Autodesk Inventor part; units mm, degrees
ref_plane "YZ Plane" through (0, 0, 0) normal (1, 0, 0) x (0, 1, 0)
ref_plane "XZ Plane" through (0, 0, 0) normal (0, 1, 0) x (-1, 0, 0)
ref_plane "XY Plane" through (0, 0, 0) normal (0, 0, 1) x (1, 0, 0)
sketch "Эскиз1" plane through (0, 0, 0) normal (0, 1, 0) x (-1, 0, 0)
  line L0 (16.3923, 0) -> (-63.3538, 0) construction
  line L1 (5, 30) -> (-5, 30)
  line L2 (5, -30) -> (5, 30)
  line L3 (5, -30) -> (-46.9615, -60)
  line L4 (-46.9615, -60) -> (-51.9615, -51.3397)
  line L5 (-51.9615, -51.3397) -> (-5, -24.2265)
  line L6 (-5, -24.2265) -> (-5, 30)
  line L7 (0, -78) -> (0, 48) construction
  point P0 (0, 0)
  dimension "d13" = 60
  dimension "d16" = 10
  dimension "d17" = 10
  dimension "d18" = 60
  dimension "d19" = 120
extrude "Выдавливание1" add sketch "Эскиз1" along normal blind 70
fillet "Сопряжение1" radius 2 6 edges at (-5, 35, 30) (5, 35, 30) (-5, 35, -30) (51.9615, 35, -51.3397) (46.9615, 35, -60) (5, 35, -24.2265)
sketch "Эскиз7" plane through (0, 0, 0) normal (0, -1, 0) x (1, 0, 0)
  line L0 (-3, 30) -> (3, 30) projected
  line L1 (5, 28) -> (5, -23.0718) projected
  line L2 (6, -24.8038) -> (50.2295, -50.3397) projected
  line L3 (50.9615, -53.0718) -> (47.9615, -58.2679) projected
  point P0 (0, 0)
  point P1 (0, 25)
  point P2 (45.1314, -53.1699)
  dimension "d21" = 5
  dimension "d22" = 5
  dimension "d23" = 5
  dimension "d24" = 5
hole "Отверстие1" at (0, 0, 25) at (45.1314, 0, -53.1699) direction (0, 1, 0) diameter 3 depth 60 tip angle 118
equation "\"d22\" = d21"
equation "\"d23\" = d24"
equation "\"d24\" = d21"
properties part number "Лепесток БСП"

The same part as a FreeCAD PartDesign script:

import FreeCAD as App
import Part
import Sketcher
Q = App.Units.Quantity


def edges_at(feature, points):
    """Names of the edges that pass closest to the given points."""
    edges = feature.Shape.Edges
    near = lambda p: min(range(len(edges)), key=lambda i: edges[i].distToShape(Part.Vertex(*p))[0])
    return sorted({f"Edge{near(p) + 1}" for p in points})

doc = App.newDocument("Part")
body = doc.addObject("PartDesign::Body", "Body")

# Sketch on XZ plane
sketch1 = body.newObject("Sketcher::SketchObject", "Sketch")
sketch1.AttachmentSupport = (doc.getObject("XZ_Plane"), [""])
sketch1.MapMode = "FlatFace"
sketch1.addGeometry([
    Part.LineSegment(App.Vector(-5, -30, 0), App.Vector(-5, 30, 0)),  # 0
    Part.LineSegment(App.Vector(-5, 30, 0), App.Vector(5, 30, 0)),  # 1
    Part.LineSegment(App.Vector(5, 30, 0), App.Vector(5, -24, 0)),  # 2
    Part.LineSegment(App.Vector(5, -24, 0), App.Vector(52, -51, 0)),  # 3
    Part.LineSegment(App.Vector(52, -51, 0), App.Vector(47, -60, 0)),  # 4
    Part.LineSegment(App.Vector(47, -60, 0), App.Vector(-5, -30, 0)),  # 5
], False)
sketch1.addConstraint([
    Sketcher.Constraint("Coincident", 0, 2, 1, 1),
    Sketcher.Constraint("Coincident", 1, 2, 2, 1),
    Sketcher.Constraint("Coincident", 2, 2, 3, 1),
    Sketcher.Constraint("Coincident", 3, 2, 4, 1),
    Sketcher.Constraint("Coincident", 4, 2, 5, 1),
    Sketcher.Constraint("Coincident", 5, 2, 0, 1),
    Sketcher.Constraint("Vertical", 0),
    Sketcher.Constraint("Horizontal", 1),
    Sketcher.Constraint("Vertical", 2),
    Sketcher.Constraint("Symmetric", 1, 2, 5, 2, -1, 1),
    Sketcher.Constraint("Perpendicular", 3, 4),
    Sketcher.Constraint("Perpendicular", 4, 5),
    Sketcher.Constraint("DistanceX", 1, 1, 1, 2, 10.0),
    Sketcher.Constraint("DistanceY", 0, 1, 0, 2, 60.0),
    Sketcher.Constraint("Angle", 4, Q("-119.9999 deg")),
    Sketcher.Constraint("Distance", 4, 10.0),
    Sketcher.Constraint("Distance", 5, 60.0),
])
pad1 = body.newObject("PartDesign::Pad", "Pad")
pad1.Profile = sketch1
pad1.Length = 70
pad1.Reversed = True
doc.recompute()

fillet = body.newObject("PartDesign::Fillet", "Fillet")
fillet.Base = (pad1, edges_at(pad1, [
    (-5, 35, 30),
    (5, 35, 30),
    (-5, 35, -30),
    (51.962, 35, -51.34),
    (46.962, 35, -60),
    (5, 35, -24.227),
]))
fillet.Radius = 2

# Sketch on XZ plane
sketch2 = body.newObject("Sketcher::SketchObject", "Sketch001")
sketch2.AttachmentSupport = (doc.getObject("XZ_Plane"), [""])
sketch2.MapMode = "FlatFace"
sketch2.addGeometry([
    Part.Circle(App.Vector(0, 25, 0), App.Vector(0, 0, 1), 1.5),
    Part.Circle(App.Vector(45.1, -53.2, 0), App.Vector(0, 0, 1), 1.5),
], False)
sketch2.addConstraint([
    Sketcher.Constraint("Equal", 0, 1),
    Sketcher.Constraint("PointOnObject", 0, 3, -2),
    Sketcher.Constraint("Diameter", 0, 3.0),
    Sketcher.Constraint("DistanceY", -1, 1, 0, 3, 25.0),
    Sketcher.Constraint("DistanceY", 1, 3, -1, 1, 53.17),
    Sketcher.Constraint("DistanceX", -1, 1, 1, 3, 45.1314),
])
doc.recompute()
hole = body.newObject("PartDesign::Hole", "Hole")
hole.Profile = sketch2
hole.ThreadType = "None"
hole.Diameter = 3
hole.DepthType = "Dimension"
hole.Depth = 60
hole.DrillPoint = "Angled"
hole.DrillPointAngle = 118

doc.recompute()
